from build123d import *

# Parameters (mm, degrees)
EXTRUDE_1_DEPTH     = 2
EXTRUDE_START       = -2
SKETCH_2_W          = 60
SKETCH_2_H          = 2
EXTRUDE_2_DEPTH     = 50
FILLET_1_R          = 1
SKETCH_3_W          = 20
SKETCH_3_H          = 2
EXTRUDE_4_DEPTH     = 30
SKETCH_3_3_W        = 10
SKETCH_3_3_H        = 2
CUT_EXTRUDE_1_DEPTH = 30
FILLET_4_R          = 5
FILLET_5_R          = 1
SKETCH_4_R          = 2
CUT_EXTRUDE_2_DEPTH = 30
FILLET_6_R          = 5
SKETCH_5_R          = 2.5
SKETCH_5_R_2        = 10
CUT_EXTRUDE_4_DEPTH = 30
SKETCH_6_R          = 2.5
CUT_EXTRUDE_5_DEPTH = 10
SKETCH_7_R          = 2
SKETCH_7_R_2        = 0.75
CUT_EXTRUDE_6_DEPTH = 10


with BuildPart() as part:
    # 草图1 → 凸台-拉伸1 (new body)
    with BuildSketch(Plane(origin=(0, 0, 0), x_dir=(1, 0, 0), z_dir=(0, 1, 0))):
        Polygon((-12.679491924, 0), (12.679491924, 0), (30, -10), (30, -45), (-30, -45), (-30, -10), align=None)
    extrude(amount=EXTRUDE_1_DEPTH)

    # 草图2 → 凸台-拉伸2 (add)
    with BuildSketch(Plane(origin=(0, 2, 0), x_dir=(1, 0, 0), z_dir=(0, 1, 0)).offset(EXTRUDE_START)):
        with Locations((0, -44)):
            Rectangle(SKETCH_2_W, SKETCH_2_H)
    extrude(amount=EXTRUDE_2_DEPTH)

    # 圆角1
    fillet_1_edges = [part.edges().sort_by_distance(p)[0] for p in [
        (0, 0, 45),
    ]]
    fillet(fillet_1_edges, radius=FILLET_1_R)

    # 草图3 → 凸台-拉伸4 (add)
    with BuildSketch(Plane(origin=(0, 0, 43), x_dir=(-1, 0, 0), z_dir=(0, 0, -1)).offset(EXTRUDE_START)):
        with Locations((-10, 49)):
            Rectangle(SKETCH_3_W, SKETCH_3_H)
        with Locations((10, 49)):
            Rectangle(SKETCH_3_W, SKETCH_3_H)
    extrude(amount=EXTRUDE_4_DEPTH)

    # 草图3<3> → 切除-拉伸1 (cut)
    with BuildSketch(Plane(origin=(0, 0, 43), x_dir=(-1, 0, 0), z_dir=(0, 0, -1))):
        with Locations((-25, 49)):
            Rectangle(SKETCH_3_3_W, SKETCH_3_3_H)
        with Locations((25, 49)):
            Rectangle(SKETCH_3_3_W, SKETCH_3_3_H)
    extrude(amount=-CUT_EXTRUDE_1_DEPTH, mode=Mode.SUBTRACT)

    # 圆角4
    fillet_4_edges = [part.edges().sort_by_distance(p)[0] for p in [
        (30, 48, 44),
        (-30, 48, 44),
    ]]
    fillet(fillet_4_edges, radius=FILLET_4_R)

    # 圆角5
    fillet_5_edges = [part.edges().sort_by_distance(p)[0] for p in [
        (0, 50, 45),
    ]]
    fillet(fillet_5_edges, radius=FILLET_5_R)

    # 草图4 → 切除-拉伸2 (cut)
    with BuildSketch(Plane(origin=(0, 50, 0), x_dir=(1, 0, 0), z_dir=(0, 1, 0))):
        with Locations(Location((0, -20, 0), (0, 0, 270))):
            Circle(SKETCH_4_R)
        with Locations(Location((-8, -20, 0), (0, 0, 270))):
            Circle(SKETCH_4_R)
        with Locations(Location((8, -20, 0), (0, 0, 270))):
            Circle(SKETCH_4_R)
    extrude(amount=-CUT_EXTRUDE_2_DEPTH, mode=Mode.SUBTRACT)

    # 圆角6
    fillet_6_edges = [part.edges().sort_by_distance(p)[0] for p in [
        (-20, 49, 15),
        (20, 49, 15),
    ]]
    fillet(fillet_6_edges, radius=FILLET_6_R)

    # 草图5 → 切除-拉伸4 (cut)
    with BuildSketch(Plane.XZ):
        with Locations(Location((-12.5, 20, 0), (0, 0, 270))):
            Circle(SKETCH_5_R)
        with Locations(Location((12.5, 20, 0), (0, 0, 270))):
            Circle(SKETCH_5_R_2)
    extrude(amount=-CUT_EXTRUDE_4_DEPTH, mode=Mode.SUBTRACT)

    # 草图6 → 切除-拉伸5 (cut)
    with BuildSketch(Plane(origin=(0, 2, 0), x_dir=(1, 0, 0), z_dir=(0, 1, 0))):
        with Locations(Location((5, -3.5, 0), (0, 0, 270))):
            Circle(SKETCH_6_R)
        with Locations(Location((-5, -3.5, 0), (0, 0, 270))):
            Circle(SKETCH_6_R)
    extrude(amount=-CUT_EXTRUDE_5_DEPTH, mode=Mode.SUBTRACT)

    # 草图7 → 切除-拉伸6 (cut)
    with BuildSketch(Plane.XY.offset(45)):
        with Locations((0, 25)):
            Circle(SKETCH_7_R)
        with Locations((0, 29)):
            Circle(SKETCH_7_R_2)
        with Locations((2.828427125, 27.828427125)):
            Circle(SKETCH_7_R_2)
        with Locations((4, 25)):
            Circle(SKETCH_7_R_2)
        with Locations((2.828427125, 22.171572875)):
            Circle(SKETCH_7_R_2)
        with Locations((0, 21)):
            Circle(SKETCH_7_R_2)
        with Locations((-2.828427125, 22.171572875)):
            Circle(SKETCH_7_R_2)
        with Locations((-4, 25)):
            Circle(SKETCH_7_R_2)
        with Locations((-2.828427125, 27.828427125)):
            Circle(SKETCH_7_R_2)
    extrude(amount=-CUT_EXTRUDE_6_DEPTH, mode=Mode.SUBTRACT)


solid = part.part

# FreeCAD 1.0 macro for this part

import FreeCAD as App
import Part
import Sketcher

V = App.Vector
Q = App.Units.Quantity


def edges_at(feature, points):
    """Names of the edges that pass closest to the given points."""
    edges = feature.Shape.Edges
    near = lambda p: min(range(len(edges)), key=lambda i: edges[i].distToShape(Part.Vertex(*p))[0])
    return sorted({f"Edge{near(p) + 1}" for p in points})

doc = App.newDocument("Part")
body = doc.addObject("PartDesign::Body", "Body")

# Sketch on XZ plane
sketch1 = doc.addObject("Sketcher::SketchObject", "Sketch")
body.addObject(sketch1)
sketch1.AttachmentSupport = (doc.XZ_Plane, [""])
sketch1.MapMode = "FlatFace"
sketch1.addGeometry([
    Part.LineSegment(V(13, 0, 0), V(-13, 0, 0)),  # 0
    Part.LineSegment(V(-13, 0, 0), V(-30, 10, 0)),  # 1
    Part.LineSegment(V(-30, 10, 0), V(-30, 45, 0)),  # 2
    Part.LineSegment(V(-30, 45, 0), V(30, 45, 0)),  # 3
    Part.LineSegment(V(30, 45, 0), V(30, 10, 0)),  # 4
    Part.LineSegment(V(30, 10, 0), V(13, 0, 0)),  # 5
], False)
sketch1.addConstraint([
    Sketcher.Constraint("Coincident", 0, 2, 1, 1),
    Sketcher.Constraint("Coincident", 1, 2, 2, 1),
    Sketcher.Constraint("Coincident", 2, 2, 3, 1),
    Sketcher.Constraint("Coincident", 3, 2, 4, 1),
    Sketcher.Constraint("Coincident", 4, 2, 5, 1),
    Sketcher.Constraint("Coincident", 5, 2, 0, 1),
    Sketcher.Constraint("Horizontal", 0),
    Sketcher.Constraint("Vertical", 2),
    Sketcher.Constraint("Horizontal", 3),
    Sketcher.Constraint("Vertical", 4),
    Sketcher.Constraint("Symmetric", 0, 2, 5, 2, -1, 1),
    Sketcher.Constraint("Symmetric", 1, 2, 4, 2, -2),
    Sketcher.Constraint("DistanceX", 3, 1, 3, 2, Q("60 mm")),
    Sketcher.Constraint("DistanceY", 2, 1, 2, 2, Q("35 mm")),
    Sketcher.Constraint("Angle", 1, Q("150 deg")),
    Sketcher.Constraint("Distance", 1, Q("20 mm")),
])
pad1 = doc.addObject("PartDesign::Pad", "Pad")
body.addObject(pad1)
pad1.Profile = sketch1
pad1.Length = 2
pad1.Reversed = True

# Sketch on XZ plane
sketch2 = doc.addObject("Sketcher::SketchObject", "Sketch001")
body.addObject(sketch2)
sketch2.AttachmentSupport = (doc.XZ_Plane, [""])
sketch2.MapMode = "FlatFace"
sketch2.addGeometry([
    Part.LineSegment(V(-30, 43, 0), V(-30, 45, 0)),
    Part.LineSegment(V(-30, 45, 0), V(30, 45, 0)),
    Part.LineSegment(V(30, 45, 0), V(30, 43, 0)),
    Part.LineSegment(V(30, 43, 0), V(-30, 43, 0)),
], False)
sketch2.addConstraint([
    Sketcher.Constraint("Coincident", 0, 2, 1, 1),
    Sketcher.Constraint("Coincident", 1, 2, 2, 1),
    Sketcher.Constraint("Coincident", 2, 2, 3, 1),
    Sketcher.Constraint("Coincident", 3, 2, 0, 1),
    Sketcher.Constraint("Vertical", 0),
    Sketcher.Constraint("Horizontal", 1),
    Sketcher.Constraint("Vertical", 2),
    Sketcher.Constraint("Horizontal", 3),
    Sketcher.Constraint("DistanceX", 1, 1, 1, 2, Q("60 mm")),
    Sketcher.Constraint("DistanceY", 0, 1, 0, 2, Q("2 mm")),
    Sketcher.Constraint("DistanceX", 0, 2, -1, 1, Q("30 mm")),
    Sketcher.Constraint("DistanceY", -1, 1, 0, 2, Q("45 mm")),
])
pad2 = doc.addObject("PartDesign::Pad", "Pad001")
body.addObject(pad2)
pad2.Profile = sketch2
pad2.Length = 50
pad2.Reversed = True
doc.recompute()

fillet = doc.addObject("PartDesign::Fillet", "Fillet")
body.addObject(fillet)
fillet.Base = (pad2, edges_at(pad2, [(0, 0, 45)]))
fillet.Radius = 1

# Sketch on XY plane
sketch3 = doc.addObject("Sketcher::SketchObject", "Sketch002")
body.addObject(sketch3)
sketch3.AttachmentSupport = (doc.XY_Plane, [""])
sketch3.MapMode = "FlatFace"
sketch3.AttachmentOffset = App.Placement(V(0, 0, 45), App.Rotation())
sketch3.addGeometry([
    Part.LineSegment(V(20, 50, 0), V(20, 48, 0)),
    Part.LineSegment(V(20, 48, 0), V(-20, 48, 0)),
    Part.LineSegment(V(-20, 48, 0), V(-20, 50, 0)),
    Part.LineSegment(V(-20, 50, 0), V(20, 50, 0)),
], False)
sketch3.addConstraint([
    Sketcher.Constraint("Coincident", 0, 2, 1, 1),
    Sketcher.Constraint("Coincident", 1, 2, 2, 1),
    Sketcher.Constraint("Coincident", 2, 2, 3, 1),
    Sketcher.Constraint("Coincident", 3, 2, 0, 1),
    Sketcher.Constraint("Vertical", 0),
    Sketcher.Constraint("Horizontal", 1),
    Sketcher.Constraint("Vertical", 2),
    Sketcher.Constraint("Horizontal", 3),
    Sketcher.Constraint("DistanceX", 1, 2, 1, 1, Q("40 mm")),
    Sketcher.Constraint("DistanceY", 0, 2, 0, 1, Q("2 mm")),
    Sketcher.Constraint("DistanceX", -1, 1, 0, 2, Q("20 mm")),
    Sketcher.Constraint("DistanceY", -1, 1, 0, 2, Q("48 mm")),
])
pad3 = doc.addObject("PartDesign::Pad", "Pad002")
body.addObject(pad3)
pad3.Profile = sketch3
pad3.Length = 30
pad3.Reversed = True

# Sketch on XY plane
sketch4 = doc.addObject("Sketcher::SketchObject", "Sketch003")
body.addObject(sketch4)
sketch4.AttachmentSupport = (doc.XY_Plane, [""])
sketch4.MapMode = "FlatFace"
sketch4.AttachmentOffset = App.Placement(V(0, 0, 43), App.Rotation())
sketch4.addGeometry([
    Part.LineSegment(V(30, 50, 0), V(30, 48, 0)),  # 0
    Part.LineSegment(V(30, 48, 0), V(20, 48, 0)),  # 1
    Part.LineSegment(V(20, 48, 0), V(20, 50, 0)),  # 2
    Part.LineSegment(V(20, 50, 0), V(30, 50, 0)),  # 3
    Part.LineSegment(V(-20, 50, 0), V(-20, 48, 0)),  # 4
    Part.LineSegment(V(-20, 48, 0), V(-30, 48, 0)),  # 5
    Part.LineSegment(V(-30, 48, 0), V(-30, 50, 0)),  # 6
    Part.LineSegment(V(-30, 50, 0), V(-20, 50, 0)),  # 7
], False)
sketch4.addConstraint([
    Sketcher.Constraint("Coincident", 0, 2, 1, 1),
    Sketcher.Constraint("Coincident", 1, 2, 2, 1),
    Sketcher.Constraint("Coincident", 2, 2, 3, 1),
    Sketcher.Constraint("Coincident", 3, 2, 0, 1),
    Sketcher.Constraint("Coincident", 4, 2, 5, 1),
    Sketcher.Constraint("Coincident", 5, 2, 6, 1),
    Sketcher.Constraint("Coincident", 6, 2, 7, 1),
    Sketcher.Constraint("Coincident", 7, 2, 4, 1),
    Sketcher.Constraint("Vertical", 0),
    Sketcher.Constraint("Horizontal", 1),
    Sketcher.Constraint("Vertical", 2),
    Sketcher.Constraint("Horizontal", 3),
    Sketcher.Constraint("Vertical", 4),
    Sketcher.Constraint("Horizontal", 5),
    Sketcher.Constraint("Vertical", 6),
    Sketcher.Constraint("Horizontal", 7),
    Sketcher.Constraint("Symmetric", 1, 2, 4, 2, -2),
    Sketcher.Constraint("Symmetric", 3, 2, 6, 2, -2),
    Sketcher.Constraint("DistanceX", 1, 2, 1, 1, Q("10 mm")),
    Sketcher.Constraint("DistanceY", 0, 2, 0, 1, Q("2 mm")),
    Sketcher.Constraint("DistanceX", -1, 1, 0, 2, Q("30 mm")),
    Sketcher.Constraint("DistanceY", -1, 1, 0, 2, Q("48 mm")),
])
pocket1 = doc.addObject("PartDesign::Pocket", "Pocket")
body.addObject(pocket1)
pocket1.Profile = sketch4
pocket1.Length = 30
pocket1.Reversed = True
doc.recompute()

fillet2 = doc.addObject("PartDesign::Fillet", "Fillet001")
body.addObject(fillet2)
fillet2.Base = (pocket1, edges_at(pocket1, [(30, 48, 44), (-30, 48, 44)]))
fillet2.Radius = 5
doc.recompute()

fillet3 = doc.addObject("PartDesign::Fillet", "Fillet002")
body.addObject(fillet3)
fillet3.Base = (fillet2, edges_at(fillet2, [(0, 50, 45)]))
fillet3.Radius = 1

# Sketch on XZ plane
sketch5 = doc.addObject("Sketcher::SketchObject", "Sketch004")
body.addObject(sketch5)
sketch5.AttachmentSupport = (doc.XZ_Plane, [""])
sketch5.MapMode = "FlatFace"
sketch5.AttachmentOffset = App.Placement(V(0, 0, -50), App.Rotation())
sketch5.addGeometry([
    Part.Circle(V(0, 20, 0), V(0, 0, 1), 2),
    Part.Circle(V(-8, 20, 0), V(0, 0, 1), 2),
    Part.Circle(V(8, 20, 0), V(0, 0, 1), 2),
], False)
sketch5.addConstraint([
    Sketcher.Constraint("Equal", 0, 1),
    Sketcher.Constraint("Equal", 1, 2),
    Sketcher.Constraint("Symmetric", 1, 3, 2, 3, -2),
    Sketcher.Constraint("PointOnObject", 0, 3, -2),
    Sketcher.Constraint("Horizontal", 0, 3, 1, 3),
    Sketcher.Constraint("Diameter", 0, Q("4 mm")),
    Sketcher.Constraint("DistanceY", -1, 1, 0, 3, Q("20 mm")),
    Sketcher.Constraint("DistanceX", 1, 3, -1, 1, Q("8 mm")),
])
pocket2 = doc.addObject("PartDesign::Pocket", "Pocket001")
body.addObject(pocket2)
pocket2.Profile = sketch5
pocket2.Length = 30
pocket2.Reversed = True
doc.recompute()

fillet4 = doc.addObject("PartDesign::Fillet", "Fillet003")
body.addObject(fillet4)
fillet4.Base = (pocket2, edges_at(pocket2, [(-20, 49, 15), (20, 49, 15)]))
fillet4.Radius = 5

# Sketch on XZ plane
sketch6 = doc.addObject("Sketcher::SketchObject", "Sketch005")
body.addObject(sketch6)
sketch6.AttachmentSupport = (doc.XZ_Plane, [""])
sketch6.MapMode = "FlatFace"
sketch6.addGeometry([
    Part.Circle(V(-12.5, 20, 0), V(0, 0, 1), 2.5),
    Part.Circle(V(12.5, 20, 0), V(0, 0, 1), 10),
], False)
sketch6.addConstraint([
    Sketcher.Constraint("Symmetric", 0, 3, 1, 3, -2),
    Sketcher.Constraint("Diameter", 0, Q("5 mm")),
    Sketcher.Constraint("Diameter", 1, Q("20 mm")),
    Sketcher.Constraint("DistanceY", -1, 1, 0, 3, Q("20 mm")),
    Sketcher.Constraint("DistanceX", 0, 3, 1, 3, Q("25 mm")),
])
pocket3 = doc.addObject("PartDesign::Pocket", "Pocket002")
body.addObject(pocket3)
pocket3.Profile = sketch6
pocket3.Length = 30

# Sketch on XZ plane
sketch7 = doc.addObject("Sketcher::SketchObject", "Sketch006")
body.addObject(sketch7)
sketch7.AttachmentSupport = (doc.XZ_Plane, [""])
sketch7.MapMode = "FlatFace"
sketch7.AttachmentOffset = App.Placement(V(0, 0, -2), App.Rotation())
sketch7.addGeometry([
    Part.Circle(V(5, 3.5, 0), V(0, 0, 1), 2.5),
    Part.Circle(V(-5, 3.5, 0), V(0, 0, 1), 2.5),
], False)
sketch7.addConstraint([
    Sketcher.Constraint("Equal", 0, 1),
    Sketcher.Constraint("Symmetric", 0, 3, 1, 3, -2),
    Sketcher.Constraint("Diameter", 0, Q("5 mm")),
    Sketcher.Constraint("DistanceX", -1, 1, 0, 3, Q("5 mm")),
    Sketcher.Constraint("DistanceY", -1, 1, 0, 3, Q("3.5 mm")),
])
pocket4 = doc.addObject("PartDesign::Pocket", "Pocket003")
body.addObject(pocket4)
pocket4.Profile = sketch7
pocket4.Length = 10
pocket4.Reversed = True

# Sketch on XY plane
sketch8 = doc.addObject("Sketcher::SketchObject", "Sketch007")
body.addObject(sketch8)
sketch8.AttachmentSupport = (doc.XY_Plane, [""])
sketch8.MapMode = "FlatFace"
sketch8.AttachmentOffset = App.Placement(V(0, 0, 45), App.Rotation())
sketch8.addGeometry([
    Part.Circle(V(0, 25, 0), V(0, 0, 1), 2),  # 0
    Part.Circle(V(0, 29, 0), V(0, 0, 1), 0.8),  # 1
    Part.Circle(V(2.8, 27.8, 0), V(0, 0, 1), 0.8),  # 2
    Part.Circle(V(4, 25, 0), V(0, 0, 1), 0.8),  # 3
    Part.Circle(V(2.8, 22.2, 0), V(0, 0, 1), 0.8),  # 4
    Part.Circle(V(0, 21, 0), V(0, 0, 1), 0.8),  # 5
    Part.Circle(V(-2.8, 22.2, 0), V(0, 0, 1), 0.8),  # 6
    Part.Circle(V(-4, 25, 0), V(0, 0, 1), 0.8),  # 7
    Part.Circle(V(-2.8, 27.8, 0), V(0, 0, 1), 0.8),  # 8
], False)
sketch8.addConstraint([
    Sketcher.Constraint("Equal", 1, 2),
    Sketcher.Constraint("Equal", 2, 3),
    Sketcher.Constraint("Equal", 3, 4),
    Sketcher.Constraint("Equal", 4, 5),
    Sketcher.Constraint("Equal", 5, 6),
    Sketcher.Constraint("Equal", 6, 7),
    Sketcher.Constraint("Equal", 7, 8),
    Sketcher.Constraint("Symmetric", 4, 3, 6, 3, -2),
    Sketcher.Constraint("Symmetric", 3, 3, 7, 3, -2),
    Sketcher.Constraint("Symmetric", 2, 3, 8, 3, -2),
    Sketcher.Constraint("PointOnObject", 0, 3, -2),
    Sketcher.Constraint("PointOnObject", 1, 3, -2),
    Sketcher.Constraint("PointOnObject", 5, 3, -2),
    Sketcher.Constraint("Horizontal", 0, 3, 3, 3),
    Sketcher.Constraint("Vertical", 2, 3, 4, 3),
    Sketcher.Constraint("Diameter", 0, Q("4 mm")),
    Sketcher.Constraint("Diameter", 1, Q("1.5 mm")),
    Sketcher.Constraint("DistanceY", -1, 1, 0, 3, Q("25 mm")),
    Sketcher.Constraint("DistanceY", -1, 1, 1, 3, Q("29 mm")),
    Sketcher.Constraint("DistanceX", -1, 1, 3, 3, Q("4 mm")),
    Sketcher.Constraint("DistanceY", -1, 1, 5, 3, Q("21 mm")),
    Sketcher.Constraint("DistanceX", -1, 1, 2, 3, Q("2.828427 mm")),
    Sketcher.Constraint("DistanceY", -1, 1, 2, 3, Q("27.828427 mm")),
    Sketcher.Constraint("DistanceY", -1, 1, 4, 3, Q("22.171573 mm")),
])
pocket5 = doc.addObject("PartDesign::Pocket", "Pocket004")
body.addObject(pocket5)
pocket5.Profile = sketch8
pocket5.Length = 10

doc.recompute()
